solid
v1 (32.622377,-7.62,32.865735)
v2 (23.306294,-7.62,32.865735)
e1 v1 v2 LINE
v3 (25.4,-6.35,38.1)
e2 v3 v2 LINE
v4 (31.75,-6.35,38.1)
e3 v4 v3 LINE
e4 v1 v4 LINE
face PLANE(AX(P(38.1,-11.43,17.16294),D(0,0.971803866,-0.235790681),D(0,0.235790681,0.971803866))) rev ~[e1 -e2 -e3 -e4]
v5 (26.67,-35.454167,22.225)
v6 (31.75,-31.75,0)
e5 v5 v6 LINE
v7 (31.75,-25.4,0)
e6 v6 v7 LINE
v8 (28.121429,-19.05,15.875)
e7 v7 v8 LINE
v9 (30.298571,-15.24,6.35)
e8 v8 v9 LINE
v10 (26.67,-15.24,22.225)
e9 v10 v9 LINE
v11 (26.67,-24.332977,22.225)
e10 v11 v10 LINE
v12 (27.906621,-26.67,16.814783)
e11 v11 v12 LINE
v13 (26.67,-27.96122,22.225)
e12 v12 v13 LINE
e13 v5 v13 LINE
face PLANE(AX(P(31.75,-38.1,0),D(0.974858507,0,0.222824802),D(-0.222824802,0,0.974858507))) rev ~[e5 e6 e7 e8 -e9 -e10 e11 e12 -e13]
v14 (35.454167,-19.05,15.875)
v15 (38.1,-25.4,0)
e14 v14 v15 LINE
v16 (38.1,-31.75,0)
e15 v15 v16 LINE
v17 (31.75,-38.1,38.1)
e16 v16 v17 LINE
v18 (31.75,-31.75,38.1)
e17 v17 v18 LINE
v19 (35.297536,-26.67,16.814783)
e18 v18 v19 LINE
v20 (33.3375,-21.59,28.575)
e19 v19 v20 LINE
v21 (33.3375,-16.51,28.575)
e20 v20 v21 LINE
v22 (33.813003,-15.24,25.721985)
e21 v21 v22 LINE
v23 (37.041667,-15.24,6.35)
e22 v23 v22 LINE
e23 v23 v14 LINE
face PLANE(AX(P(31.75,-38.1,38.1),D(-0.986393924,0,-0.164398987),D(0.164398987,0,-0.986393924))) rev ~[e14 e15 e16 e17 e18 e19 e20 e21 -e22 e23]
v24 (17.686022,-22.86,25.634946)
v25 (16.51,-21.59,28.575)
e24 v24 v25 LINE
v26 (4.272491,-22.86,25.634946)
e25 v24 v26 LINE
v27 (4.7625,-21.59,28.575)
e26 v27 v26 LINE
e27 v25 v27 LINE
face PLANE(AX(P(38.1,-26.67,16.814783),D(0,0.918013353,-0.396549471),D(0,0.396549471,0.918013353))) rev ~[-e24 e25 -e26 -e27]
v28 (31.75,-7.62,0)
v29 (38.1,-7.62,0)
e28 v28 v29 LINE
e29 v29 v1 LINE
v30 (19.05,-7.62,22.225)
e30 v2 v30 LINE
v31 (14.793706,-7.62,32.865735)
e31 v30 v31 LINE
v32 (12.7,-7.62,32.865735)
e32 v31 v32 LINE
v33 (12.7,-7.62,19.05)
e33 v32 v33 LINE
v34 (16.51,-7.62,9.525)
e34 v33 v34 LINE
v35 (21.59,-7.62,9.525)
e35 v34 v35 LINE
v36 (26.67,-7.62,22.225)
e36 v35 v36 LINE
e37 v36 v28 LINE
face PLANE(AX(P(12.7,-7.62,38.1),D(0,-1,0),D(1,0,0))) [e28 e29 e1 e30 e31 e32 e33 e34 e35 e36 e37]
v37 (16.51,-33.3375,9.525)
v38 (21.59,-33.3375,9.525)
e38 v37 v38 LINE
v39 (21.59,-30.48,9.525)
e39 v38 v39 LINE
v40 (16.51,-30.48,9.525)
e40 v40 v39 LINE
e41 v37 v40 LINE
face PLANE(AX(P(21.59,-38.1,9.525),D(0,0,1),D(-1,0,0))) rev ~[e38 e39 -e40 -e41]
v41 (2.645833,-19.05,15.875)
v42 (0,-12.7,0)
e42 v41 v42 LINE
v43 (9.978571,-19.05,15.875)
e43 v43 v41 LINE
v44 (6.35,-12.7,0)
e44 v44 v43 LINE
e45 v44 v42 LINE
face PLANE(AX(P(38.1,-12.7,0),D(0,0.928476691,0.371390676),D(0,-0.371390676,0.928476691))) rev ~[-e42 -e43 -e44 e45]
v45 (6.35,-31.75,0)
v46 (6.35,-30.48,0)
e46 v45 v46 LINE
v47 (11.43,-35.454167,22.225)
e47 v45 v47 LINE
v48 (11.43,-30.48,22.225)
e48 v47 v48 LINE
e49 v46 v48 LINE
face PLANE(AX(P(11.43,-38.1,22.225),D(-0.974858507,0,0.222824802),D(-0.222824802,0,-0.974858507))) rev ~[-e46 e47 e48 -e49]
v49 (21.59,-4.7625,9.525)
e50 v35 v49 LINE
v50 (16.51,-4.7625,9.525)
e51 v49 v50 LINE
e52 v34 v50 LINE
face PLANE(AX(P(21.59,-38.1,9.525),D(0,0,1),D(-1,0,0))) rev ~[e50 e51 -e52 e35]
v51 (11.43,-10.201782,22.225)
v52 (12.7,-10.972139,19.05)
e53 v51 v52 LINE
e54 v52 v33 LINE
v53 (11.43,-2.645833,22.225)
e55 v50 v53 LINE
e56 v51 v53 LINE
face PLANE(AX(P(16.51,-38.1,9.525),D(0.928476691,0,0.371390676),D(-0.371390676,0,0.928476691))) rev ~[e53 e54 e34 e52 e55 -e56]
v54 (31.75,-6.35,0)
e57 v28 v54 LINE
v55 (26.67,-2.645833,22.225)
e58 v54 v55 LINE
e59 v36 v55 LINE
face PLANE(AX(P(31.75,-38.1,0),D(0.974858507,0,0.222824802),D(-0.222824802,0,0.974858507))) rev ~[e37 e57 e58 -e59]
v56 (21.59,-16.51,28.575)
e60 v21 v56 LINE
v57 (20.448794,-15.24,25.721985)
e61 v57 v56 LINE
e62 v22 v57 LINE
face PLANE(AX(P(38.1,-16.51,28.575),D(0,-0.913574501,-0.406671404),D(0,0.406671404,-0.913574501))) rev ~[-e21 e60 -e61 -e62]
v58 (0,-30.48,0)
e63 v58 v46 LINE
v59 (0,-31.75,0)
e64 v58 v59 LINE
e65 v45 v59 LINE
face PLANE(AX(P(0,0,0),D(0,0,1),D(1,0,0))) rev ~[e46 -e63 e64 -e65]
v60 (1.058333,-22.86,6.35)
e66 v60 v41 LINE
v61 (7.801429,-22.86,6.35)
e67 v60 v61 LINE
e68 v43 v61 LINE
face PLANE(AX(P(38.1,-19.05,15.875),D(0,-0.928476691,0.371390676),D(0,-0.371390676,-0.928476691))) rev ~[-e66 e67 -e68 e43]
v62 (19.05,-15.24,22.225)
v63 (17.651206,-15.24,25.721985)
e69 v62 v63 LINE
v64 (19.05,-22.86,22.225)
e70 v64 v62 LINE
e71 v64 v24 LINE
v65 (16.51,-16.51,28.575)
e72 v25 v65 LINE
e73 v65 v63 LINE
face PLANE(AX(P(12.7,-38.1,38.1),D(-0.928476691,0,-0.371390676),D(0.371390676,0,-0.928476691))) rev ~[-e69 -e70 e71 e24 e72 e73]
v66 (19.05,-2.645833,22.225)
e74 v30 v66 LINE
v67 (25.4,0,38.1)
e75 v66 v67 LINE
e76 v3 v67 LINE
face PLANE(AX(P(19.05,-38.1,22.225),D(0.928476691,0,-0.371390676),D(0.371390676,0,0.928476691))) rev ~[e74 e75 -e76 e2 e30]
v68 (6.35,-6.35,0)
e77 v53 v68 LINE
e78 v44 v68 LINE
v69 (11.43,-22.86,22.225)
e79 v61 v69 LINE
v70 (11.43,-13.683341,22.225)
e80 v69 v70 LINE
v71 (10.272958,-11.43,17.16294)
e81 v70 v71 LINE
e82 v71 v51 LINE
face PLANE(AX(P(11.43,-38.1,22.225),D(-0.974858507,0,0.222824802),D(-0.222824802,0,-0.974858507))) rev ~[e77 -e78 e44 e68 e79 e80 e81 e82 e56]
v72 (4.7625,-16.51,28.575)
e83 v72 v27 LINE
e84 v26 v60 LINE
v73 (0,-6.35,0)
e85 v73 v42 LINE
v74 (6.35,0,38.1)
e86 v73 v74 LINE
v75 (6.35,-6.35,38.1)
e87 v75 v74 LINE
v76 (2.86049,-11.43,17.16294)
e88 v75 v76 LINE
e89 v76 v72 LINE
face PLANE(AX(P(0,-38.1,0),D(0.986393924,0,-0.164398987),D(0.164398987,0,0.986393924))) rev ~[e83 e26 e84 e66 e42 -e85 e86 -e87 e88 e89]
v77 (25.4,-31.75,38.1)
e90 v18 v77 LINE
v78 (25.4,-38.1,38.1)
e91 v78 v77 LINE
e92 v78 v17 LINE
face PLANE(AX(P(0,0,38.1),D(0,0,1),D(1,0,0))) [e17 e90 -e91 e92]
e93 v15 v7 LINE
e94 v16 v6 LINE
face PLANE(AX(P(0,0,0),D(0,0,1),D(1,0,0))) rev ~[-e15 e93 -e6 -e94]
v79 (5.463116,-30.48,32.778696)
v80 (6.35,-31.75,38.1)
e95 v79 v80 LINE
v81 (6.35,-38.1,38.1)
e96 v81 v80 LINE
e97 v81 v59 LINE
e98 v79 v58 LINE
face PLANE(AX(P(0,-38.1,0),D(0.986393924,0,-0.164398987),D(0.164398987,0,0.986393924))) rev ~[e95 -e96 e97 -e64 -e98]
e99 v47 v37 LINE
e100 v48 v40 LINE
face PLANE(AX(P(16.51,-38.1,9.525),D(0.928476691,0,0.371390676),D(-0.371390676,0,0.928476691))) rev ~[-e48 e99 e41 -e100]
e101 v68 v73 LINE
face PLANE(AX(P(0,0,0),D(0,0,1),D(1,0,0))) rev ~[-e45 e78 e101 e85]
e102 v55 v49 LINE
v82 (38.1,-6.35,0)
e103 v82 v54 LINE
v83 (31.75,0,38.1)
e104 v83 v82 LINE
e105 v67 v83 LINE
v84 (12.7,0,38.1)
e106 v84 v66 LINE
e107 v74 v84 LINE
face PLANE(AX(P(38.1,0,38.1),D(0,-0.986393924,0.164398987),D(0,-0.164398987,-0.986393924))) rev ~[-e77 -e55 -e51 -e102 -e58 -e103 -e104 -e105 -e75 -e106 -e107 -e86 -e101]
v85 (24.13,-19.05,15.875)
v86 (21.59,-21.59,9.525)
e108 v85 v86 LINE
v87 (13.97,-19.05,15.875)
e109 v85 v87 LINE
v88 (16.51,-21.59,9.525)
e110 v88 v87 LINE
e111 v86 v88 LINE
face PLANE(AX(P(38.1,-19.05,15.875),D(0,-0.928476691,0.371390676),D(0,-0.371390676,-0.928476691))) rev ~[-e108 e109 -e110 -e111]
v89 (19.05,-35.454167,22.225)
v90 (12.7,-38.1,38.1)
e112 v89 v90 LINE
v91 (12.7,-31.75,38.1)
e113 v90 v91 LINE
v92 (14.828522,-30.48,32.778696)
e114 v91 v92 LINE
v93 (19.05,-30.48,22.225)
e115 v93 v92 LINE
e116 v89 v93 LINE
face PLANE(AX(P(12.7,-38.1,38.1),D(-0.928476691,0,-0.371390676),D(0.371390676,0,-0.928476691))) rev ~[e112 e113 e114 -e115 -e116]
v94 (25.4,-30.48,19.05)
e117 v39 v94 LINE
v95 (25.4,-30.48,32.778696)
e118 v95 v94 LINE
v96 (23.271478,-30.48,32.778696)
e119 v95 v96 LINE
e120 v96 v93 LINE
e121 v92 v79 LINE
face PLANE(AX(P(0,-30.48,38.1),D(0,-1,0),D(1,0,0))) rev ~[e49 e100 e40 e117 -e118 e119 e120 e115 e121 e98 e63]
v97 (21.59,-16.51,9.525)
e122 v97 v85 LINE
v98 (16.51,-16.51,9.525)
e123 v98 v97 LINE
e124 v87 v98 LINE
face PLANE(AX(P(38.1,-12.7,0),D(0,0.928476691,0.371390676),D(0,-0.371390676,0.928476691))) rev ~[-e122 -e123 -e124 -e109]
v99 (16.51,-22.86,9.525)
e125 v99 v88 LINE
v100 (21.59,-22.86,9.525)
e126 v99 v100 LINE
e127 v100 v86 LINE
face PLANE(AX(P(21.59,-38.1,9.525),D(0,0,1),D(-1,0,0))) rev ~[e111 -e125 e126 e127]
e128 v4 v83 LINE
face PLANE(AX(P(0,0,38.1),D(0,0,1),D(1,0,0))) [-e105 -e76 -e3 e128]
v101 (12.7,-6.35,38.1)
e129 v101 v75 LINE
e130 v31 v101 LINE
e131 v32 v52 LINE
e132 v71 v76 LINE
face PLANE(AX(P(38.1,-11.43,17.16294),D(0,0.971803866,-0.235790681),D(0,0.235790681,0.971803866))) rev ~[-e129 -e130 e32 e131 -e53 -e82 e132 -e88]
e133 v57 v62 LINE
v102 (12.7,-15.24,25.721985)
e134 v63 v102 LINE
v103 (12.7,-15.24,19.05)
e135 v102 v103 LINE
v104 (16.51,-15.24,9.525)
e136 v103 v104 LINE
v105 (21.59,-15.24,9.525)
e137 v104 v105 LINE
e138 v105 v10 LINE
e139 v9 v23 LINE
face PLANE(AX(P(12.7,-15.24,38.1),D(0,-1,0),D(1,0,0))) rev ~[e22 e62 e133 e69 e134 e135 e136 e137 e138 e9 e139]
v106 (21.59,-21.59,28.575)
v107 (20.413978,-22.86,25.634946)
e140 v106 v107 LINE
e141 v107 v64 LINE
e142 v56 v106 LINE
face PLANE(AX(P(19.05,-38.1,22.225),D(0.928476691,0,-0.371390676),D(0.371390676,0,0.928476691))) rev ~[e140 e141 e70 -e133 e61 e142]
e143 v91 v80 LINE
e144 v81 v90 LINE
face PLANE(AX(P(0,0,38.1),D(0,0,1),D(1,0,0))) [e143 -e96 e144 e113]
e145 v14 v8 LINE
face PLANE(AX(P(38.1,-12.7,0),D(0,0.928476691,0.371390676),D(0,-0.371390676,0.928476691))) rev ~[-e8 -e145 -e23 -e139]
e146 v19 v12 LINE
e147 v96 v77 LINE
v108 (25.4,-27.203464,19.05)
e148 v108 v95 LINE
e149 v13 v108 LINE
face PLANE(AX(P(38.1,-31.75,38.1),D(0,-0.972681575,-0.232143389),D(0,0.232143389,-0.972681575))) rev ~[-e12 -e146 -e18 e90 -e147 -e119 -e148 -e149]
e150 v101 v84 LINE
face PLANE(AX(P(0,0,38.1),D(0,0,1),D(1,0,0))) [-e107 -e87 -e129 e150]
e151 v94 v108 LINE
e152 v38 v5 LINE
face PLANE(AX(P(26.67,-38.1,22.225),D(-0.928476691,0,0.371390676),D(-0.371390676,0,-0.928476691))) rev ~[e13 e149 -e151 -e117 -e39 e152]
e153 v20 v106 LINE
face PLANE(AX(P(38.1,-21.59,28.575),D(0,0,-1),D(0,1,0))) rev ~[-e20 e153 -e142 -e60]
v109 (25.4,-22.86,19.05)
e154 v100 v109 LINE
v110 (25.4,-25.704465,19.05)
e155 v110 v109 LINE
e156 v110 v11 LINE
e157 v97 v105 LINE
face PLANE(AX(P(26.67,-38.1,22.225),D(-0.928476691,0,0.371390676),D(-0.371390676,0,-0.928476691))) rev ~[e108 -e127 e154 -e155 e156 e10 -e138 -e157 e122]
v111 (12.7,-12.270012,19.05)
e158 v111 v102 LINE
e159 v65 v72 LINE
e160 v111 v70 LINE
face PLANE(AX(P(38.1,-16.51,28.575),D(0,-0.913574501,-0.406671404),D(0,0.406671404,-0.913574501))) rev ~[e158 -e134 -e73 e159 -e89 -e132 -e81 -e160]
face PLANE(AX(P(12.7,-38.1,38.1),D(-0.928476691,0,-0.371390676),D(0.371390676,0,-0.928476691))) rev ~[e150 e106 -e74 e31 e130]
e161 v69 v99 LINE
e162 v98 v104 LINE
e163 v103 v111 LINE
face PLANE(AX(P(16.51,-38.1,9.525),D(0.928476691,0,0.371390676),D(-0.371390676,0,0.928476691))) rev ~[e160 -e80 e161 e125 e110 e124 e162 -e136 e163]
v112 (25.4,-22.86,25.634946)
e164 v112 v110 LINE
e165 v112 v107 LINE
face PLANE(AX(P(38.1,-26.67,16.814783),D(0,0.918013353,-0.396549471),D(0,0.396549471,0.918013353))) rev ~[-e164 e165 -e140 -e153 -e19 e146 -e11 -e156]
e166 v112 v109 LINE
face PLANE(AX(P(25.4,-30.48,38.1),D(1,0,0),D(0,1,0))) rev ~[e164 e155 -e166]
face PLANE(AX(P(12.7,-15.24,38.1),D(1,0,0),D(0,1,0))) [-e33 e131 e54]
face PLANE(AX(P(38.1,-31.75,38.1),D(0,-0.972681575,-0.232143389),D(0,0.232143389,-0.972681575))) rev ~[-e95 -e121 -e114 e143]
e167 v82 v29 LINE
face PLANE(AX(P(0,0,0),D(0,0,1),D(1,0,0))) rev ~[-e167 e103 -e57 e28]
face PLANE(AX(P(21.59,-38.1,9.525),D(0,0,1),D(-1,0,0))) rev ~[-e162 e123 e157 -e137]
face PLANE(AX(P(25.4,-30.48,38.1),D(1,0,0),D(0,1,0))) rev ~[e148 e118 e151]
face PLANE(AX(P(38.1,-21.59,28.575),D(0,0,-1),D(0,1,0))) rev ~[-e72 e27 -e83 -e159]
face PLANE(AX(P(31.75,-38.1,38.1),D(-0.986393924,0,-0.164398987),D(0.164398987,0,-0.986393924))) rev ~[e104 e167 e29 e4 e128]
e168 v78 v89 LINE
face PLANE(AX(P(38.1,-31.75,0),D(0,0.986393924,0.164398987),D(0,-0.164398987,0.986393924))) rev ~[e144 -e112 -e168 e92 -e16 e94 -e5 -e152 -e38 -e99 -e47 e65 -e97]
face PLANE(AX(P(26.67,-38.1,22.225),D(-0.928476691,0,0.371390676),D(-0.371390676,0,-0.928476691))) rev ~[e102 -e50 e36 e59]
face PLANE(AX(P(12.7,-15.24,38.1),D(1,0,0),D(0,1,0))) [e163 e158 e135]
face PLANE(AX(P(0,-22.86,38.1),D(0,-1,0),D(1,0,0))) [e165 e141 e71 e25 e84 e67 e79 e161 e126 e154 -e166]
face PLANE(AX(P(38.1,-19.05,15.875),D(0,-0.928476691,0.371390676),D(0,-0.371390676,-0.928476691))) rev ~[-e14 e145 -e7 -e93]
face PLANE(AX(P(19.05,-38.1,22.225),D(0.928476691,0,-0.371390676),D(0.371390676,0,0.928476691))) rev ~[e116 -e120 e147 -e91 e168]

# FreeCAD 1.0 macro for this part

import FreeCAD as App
import Part
import Sketcher

V = App.Vector
Q = App.Units.Quantity


def add_polygon(sketch, points):
    """Adds a closed chain of lines whose ends are joined by coincident constraints."""
    first, n = sketch.GeometryCount, len(points)
    for a, b in zip(points, points[1:] + points[:1]):
        sketch.addGeometry(Part.LineSegment(App.Vector(*a, 0), App.Vector(*b, 0)), False)
    for i in range(n):
        sketch.addConstraint(Sketcher.Constraint("Coincident", first + i, 2, first + (i + 1) % n, 1))

doc = App.newDocument("Part")
body = doc.addObject("PartDesign::Body", "Body")

# Sketch on XZ plane
sketch1 = body.newObject("Sketcher::SketchObject", "Sketch")
sketch1.AttachmentSupport = (doc.getObject("XZ_Plane"), [""])
sketch1.MapMode = "FlatFace"
add_polygon(sketch1, [(0, 38), (0, 0), (38, 0), (38, 38)])  # lines 0-3
sketch1.addConstraint([
    Sketcher.Constraint("Vertical", 0),
    Sketcher.Constraint("Horizontal", 1),
    Sketcher.Constraint("Vertical", 2),
    Sketcher.Constraint("Horizontal", 3),
    Sketcher.Constraint("Coincident", 0, 2, -1, 1),
    Sketcher.Constraint("Equal", 3, 0),
    Sketcher.Constraint("DistanceX", 1, 1, 1, 2, Q("1.5 in")),
])
pad1 = body.newObject("PartDesign::Pad", "Pad")
pad1.Profile = sketch1
pad1.Length = Q("1.5 in")

# Sketch on YZ plane
sketch2 = body.newObject("Sketcher::SketchObject", "Sketch001")
sketch2.AttachmentSupport = (doc.getObject("YZ_Plane"), [""])
sketch2.MapMode = "FlatFace"
sketch2.AttachmentOffset = App.Placement(V(0, 0, 1.5 * 25.4), App.Rotation())
add_polygon(sketch2, [(-6, 38), (-32, 38), (-27, 17), (-22, 29), (-17, 29), (-11, 17)])  # lines 0-5
add_polygon(sketch2, [(-32, 0), (-38, 38), (-38, 0)])  # lines 6-8
add_polygon(sketch2, [(-19, 16), (-25, 0), (-13, 0)])  # lines 9-11
add_polygon(sketch2, [(0, 0), (0, 38), (-6, 0)])  # lines 12-14
sketch2.addConstraint([
    Sketcher.Constraint("Horizontal", 0),
    Sketcher.Constraint("Horizontal", 3),
    Sketcher.Constraint("Vertical", 7),
    Sketcher.Constraint("Horizontal", 8),
    Sketcher.Constraint("Horizontal", 10),
    Sketcher.Constraint("Vertical", 12),
    Sketcher.Constraint("Horizontal", 14),
    Sketcher.Constraint("Coincident", 14, 2, -1, 1),
    Sketcher.Constraint("PointOnObject", 7, 2, -1),
    Sketcher.Constraint("PointOnObject", 9, 2, -1),
    Sketcher.Constraint("Horizontal", 5, 2, 6, 2),
    Sketcher.Constraint("Horizontal", 6, 2, 12, 2),
    Sketcher.Constraint("Vertical", 0, 2, 8, 2),
    Sketcher.Constraint("Vertical", 5, 2, 13, 2),
    Sketcher.Constraint("Equal", 8, 14),
    Sketcher.Constraint("Equal", 9, 11),
    Sketcher.Constraint("DistanceX", 0, 2, 0, 1, Q("1 in")),
    Sketcher.Constraint("DistanceX", 3, 1, 3, 2, Q("0.2 in")),
    Sketcher.Constraint("DistanceX", 10, 1, 10, 2, Q("0.5 in")),
    Sketcher.Constraint("DistanceY", 7, 2, 7, 1, Q("1.5 in")),
    Sketcher.Constraint("DistanceX", 9, 2, -1, 1, Q("1 in")),
    Sketcher.Constraint("DistanceX", 7, 2, 10, 2, Q("1 in")),
    Sketcher.Constraint("DistanceX", 0, 2, 1, 2, Q("0.2 in")),
    Sketcher.Constraint("DistanceX", 1, 2, 2, 2, Q("0.2 in")),
    Sketcher.Constraint("DistanceX", 3, 2, 4, 2, Q("0.2 in")),
    Sketcher.Constraint("DistanceY", 11, 2, 2, 2, Q("0.5 in")),
    Sketcher.Constraint("DistanceY", -1, 1, 2, 2, Q("1.125 in")),
    Sketcher.Constraint("DistanceY", -1, 1, 4, 2, Q("17.16294 mm")),
    Sketcher.Constraint("Distance", 1, Q("21.883027 mm")),
])
pocket1 = body.newObject("PartDesign::Pocket", "Pocket")
pocket1.Profile = sketch2
pocket1.Length = Q("1.5 in")

# Sketch on XZ plane
sketch3 = body.newObject("Sketcher::SketchObject", "Sketch002")
sketch3.AttachmentSupport = (doc.getObject("XZ_Plane"), [""])
sketch3.MapMode = "FlatFace"
sketch3.AttachmentOffset = App.Placement(V(0, 0, 1.5 * 25.4), App.Rotation())
add_polygon(sketch3, [(0, 38), (0, 0), (6, 38)])  # lines 0-2
add_polygon(sketch3, [(11, 22), (6, 0), (32, 0), (27, 22), (22, 10), (17, 10)])  # lines 3-8
add_polygon(sketch3, [(25, 38), (13, 38), (19, 22)])  # lines 9-11
add_polygon(sketch3, [(32, 38), (38, 0), (38, 38)])  # lines 12-14
sketch3.addConstraint([
    Sketcher.Constraint("Vertical", 0),
    Sketcher.Constraint("Horizontal", 2),
    Sketcher.Constraint("Horizontal", 4),
    Sketcher.Constraint("Horizontal", 7),
    Sketcher.Constraint("Horizontal", 9),
    Sketcher.Constraint("Vertical", 13),
    Sketcher.Constraint("Horizontal", 14),
    Sketcher.Constraint("Coincident", 0, 2, -1, 1),
    Sketcher.Constraint("PointOnObject", 3, 2, -1),
    Sketcher.Constraint("PointOnObject", 12, 2, -1),
    Sketcher.Constraint("Parallel", 8, 10),
    Sketcher.Constraint("Parallel", 6, 11),
    Sketcher.Constraint("Horizontal", 5, 2, 8, 2),
    Sketcher.Constraint("Horizontal", 2, 2, 9, 2),
    Sketcher.Constraint("Horizontal", 8, 2, 10, 2),
    Sketcher.Constraint("Horizontal", 11, 2, 13, 2),
    Sketcher.Constraint("Vertical", 1, 2, 3, 2),
    Sketcher.Constraint("Vertical", 4, 2, 14, 2),
    Sketcher.Constraint("Equal", 2, 14),
    Sketcher.Constraint("Equal", 3, 5),
    Sketcher.Constraint("Equal", 6, 8),
    Sketcher.Constraint("DistanceX", 4, 1, 4, 2, Q("1 in")),
    Sketcher.Constraint("DistanceX", 7, 2, 7, 1, Q("0.2 in")),
    Sketcher.Constraint("DistanceX", 9, 2, 9, 1, Q("0.5 in")),
    Sketcher.Constraint("DistanceY", 0, 2, 0, 1, Q("1.5 in")),
    Sketcher.Constraint("DistanceX", -1, 1, 11, 2, Q("1 in")),
    Sketcher.Constraint("DistanceX", 9, 2, 13, 2, Q("1 in")),
    Sketcher.Constraint("DistanceX", 5, 2, 4, 2, Q("0.2 in")),
    Sketcher.Constraint("DistanceY", 6, 2, 5, 2, Q("0.5 in")),
])
pocket2 = body.newObject("PartDesign::Pocket", "Pocket001")
pocket2.Profile = sketch3
pocket2.Length = Q("1.5 in")

# Sketch on XY plane
sketch4 = body.newObject("Sketcher::SketchObject", "Sketch003")
sketch4.AttachmentSupport = (doc.getObject("XY_Plane"), [""])
sketch4.MapMode = "FlatFace"
sketch4.AttachmentOffset = App.Placement(V(0, 0, 1.5 * 25.4), App.Rotation())
add_polygon(sketch4, [(13, -8), (13, -15), (38, -15), (38, -8)])  # lines 0-3
add_polygon(sketch4, [(0, -23), (0, -30), (25, -30), (25, -23)])  # lines 4-7
sketch4.addConstraint([
    Sketcher.Constraint("Vertical", 0),
    Sketcher.Constraint("Horizontal", 1),
    Sketcher.Constraint("Vertical", 2),
    Sketcher.Constraint("Horizontal", 3),
    Sketcher.Constraint("Vertical", 4),
    Sketcher.Constraint("Horizontal", 5),
    Sketcher.Constraint("Vertical", 6),
    Sketcher.Constraint("Horizontal", 7),
    Sketcher.Constraint("PointOnObject", 4, 2, -2),
    Sketcher.Constraint("Equal", 3, 5),
    Sketcher.Constraint("Equal", 2, 4),
    Sketcher.Constraint("DistanceX", 1, 1, 1, 2, Q("1 in")),
    Sketcher.Constraint("DistanceY", 0, 2, 0, 1, Q("0.3 in")),
    Sketcher.Constraint("DistanceX", -1, 1, 0, 2, Q("0.5 in")),
    Sketcher.Constraint("DistanceY", 0, 2, -1, 1, Q("0.6 in")),
    Sketcher.Constraint("DistanceY", 4, 2, -1, 1, Q("1.2 in")),
])
pocket3 = body.newObject("PartDesign::Pocket", "Pocket002")
pocket3.Profile = sketch4
pocket3.Length = Q("1.5 in")

doc.recompute()
